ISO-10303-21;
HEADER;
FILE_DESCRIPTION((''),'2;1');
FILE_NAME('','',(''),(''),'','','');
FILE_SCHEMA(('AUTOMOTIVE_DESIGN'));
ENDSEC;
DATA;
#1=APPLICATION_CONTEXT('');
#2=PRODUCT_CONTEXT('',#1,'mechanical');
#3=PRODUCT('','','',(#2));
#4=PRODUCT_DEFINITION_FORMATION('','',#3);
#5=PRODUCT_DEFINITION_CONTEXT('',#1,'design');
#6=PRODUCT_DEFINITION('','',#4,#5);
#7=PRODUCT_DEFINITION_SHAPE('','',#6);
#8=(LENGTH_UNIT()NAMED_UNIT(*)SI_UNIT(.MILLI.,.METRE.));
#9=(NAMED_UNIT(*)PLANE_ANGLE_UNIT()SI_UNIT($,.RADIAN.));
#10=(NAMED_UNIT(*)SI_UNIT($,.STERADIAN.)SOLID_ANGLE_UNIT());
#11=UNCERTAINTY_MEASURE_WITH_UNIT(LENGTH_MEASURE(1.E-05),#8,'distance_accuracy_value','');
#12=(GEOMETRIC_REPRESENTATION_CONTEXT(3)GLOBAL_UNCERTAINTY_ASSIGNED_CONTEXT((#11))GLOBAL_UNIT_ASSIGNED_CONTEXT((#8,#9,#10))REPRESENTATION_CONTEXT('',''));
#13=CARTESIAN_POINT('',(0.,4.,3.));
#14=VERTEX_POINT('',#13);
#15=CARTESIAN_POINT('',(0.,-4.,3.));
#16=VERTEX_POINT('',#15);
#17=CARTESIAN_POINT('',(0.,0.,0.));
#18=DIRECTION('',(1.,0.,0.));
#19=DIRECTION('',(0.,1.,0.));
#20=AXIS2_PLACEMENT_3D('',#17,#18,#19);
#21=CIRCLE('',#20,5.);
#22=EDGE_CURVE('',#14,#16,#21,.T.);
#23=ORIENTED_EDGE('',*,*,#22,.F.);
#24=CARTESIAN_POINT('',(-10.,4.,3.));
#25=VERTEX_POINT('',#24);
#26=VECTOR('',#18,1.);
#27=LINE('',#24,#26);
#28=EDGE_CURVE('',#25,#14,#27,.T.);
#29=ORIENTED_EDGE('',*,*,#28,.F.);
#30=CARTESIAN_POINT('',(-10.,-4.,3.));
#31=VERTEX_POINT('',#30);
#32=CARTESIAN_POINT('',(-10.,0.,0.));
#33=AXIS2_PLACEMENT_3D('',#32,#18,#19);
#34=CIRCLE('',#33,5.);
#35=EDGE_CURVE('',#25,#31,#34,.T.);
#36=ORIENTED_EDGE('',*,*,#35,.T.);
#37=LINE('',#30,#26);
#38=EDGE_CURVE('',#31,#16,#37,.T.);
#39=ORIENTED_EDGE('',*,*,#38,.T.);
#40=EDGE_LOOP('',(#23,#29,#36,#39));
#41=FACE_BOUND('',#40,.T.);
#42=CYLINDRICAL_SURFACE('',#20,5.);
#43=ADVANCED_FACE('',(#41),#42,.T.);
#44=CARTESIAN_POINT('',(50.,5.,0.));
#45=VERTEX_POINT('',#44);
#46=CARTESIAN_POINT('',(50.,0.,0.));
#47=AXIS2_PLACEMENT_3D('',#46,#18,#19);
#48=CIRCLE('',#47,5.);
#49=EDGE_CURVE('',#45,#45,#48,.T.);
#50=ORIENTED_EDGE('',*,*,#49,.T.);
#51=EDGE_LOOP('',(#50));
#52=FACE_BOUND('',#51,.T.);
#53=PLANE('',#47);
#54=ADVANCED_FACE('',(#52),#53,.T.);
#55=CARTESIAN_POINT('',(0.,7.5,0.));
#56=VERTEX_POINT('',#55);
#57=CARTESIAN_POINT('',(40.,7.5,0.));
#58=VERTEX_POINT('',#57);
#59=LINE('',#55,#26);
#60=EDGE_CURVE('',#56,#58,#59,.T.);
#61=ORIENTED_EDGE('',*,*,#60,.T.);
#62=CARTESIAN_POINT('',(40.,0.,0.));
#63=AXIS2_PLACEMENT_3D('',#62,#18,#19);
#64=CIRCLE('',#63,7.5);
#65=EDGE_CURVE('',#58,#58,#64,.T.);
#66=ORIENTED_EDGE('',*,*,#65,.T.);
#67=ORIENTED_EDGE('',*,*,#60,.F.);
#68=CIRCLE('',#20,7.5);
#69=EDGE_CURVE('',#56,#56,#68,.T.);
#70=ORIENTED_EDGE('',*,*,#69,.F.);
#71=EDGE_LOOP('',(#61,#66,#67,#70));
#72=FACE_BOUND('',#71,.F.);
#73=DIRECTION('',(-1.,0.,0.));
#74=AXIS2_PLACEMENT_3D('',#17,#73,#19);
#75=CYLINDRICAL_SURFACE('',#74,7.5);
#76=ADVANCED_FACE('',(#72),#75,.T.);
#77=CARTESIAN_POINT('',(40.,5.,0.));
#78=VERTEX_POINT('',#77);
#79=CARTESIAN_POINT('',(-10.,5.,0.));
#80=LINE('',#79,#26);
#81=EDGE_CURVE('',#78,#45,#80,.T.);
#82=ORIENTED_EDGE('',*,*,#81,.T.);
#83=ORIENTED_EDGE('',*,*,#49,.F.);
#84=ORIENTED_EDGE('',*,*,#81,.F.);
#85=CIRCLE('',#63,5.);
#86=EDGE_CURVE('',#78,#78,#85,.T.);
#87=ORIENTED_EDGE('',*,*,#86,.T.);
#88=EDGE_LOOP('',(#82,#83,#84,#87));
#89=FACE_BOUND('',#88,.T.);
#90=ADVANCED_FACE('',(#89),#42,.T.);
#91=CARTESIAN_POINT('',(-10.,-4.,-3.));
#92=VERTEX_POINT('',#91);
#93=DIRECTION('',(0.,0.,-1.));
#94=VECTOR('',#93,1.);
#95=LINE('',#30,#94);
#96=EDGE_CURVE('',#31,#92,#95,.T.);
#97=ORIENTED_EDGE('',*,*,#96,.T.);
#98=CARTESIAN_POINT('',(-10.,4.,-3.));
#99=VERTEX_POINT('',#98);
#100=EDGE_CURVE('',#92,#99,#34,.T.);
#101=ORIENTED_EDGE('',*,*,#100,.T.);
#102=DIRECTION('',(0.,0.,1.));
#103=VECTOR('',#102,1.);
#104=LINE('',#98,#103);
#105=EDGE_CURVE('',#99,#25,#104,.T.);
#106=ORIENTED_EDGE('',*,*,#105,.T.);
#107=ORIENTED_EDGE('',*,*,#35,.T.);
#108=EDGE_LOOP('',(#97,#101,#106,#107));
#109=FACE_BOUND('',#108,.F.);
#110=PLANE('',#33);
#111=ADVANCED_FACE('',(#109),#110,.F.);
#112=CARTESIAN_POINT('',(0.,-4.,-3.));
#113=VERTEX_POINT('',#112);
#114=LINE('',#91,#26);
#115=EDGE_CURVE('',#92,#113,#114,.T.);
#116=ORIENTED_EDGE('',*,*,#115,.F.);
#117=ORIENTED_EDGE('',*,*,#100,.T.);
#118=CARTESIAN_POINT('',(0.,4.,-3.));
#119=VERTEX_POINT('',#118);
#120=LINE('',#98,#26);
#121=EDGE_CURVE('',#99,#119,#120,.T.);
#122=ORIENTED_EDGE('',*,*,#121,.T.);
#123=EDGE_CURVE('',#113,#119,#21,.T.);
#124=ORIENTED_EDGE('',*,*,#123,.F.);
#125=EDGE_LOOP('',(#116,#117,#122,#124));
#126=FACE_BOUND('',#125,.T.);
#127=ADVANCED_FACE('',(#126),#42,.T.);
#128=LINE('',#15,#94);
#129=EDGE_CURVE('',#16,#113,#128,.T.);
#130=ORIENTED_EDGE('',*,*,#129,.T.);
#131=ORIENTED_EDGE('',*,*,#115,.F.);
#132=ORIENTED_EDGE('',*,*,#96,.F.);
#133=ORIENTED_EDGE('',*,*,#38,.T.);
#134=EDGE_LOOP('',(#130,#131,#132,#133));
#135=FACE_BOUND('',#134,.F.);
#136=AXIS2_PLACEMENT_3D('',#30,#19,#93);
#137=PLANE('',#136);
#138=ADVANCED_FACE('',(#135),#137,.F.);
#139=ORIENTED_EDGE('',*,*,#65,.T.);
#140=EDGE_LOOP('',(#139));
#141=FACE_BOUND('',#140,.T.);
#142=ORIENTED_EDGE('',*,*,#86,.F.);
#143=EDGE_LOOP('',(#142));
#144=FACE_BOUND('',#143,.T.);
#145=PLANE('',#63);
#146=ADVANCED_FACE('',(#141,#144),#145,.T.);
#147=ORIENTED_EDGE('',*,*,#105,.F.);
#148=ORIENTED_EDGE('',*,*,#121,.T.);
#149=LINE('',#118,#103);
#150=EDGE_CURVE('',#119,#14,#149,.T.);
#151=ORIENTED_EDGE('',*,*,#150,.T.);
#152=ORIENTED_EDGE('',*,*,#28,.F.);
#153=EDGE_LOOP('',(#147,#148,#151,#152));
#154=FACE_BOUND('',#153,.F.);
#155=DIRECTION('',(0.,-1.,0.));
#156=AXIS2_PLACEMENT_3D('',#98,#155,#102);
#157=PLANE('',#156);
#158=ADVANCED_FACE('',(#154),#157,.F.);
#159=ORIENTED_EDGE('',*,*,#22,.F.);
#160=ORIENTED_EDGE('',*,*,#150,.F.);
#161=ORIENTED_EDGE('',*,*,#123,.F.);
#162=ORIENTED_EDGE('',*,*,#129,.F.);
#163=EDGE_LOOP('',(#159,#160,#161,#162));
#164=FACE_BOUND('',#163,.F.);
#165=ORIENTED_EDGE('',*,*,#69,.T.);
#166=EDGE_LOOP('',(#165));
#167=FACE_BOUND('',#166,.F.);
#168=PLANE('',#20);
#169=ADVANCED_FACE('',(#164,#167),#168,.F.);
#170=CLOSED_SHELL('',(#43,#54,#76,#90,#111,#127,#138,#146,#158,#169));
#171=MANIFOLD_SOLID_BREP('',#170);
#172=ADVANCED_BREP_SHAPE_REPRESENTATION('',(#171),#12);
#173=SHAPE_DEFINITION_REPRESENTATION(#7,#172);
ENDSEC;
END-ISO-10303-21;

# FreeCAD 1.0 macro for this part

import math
import FreeCAD as App
import Part
import Sketcher
Q = App.Units.Quantity

doc = App.newDocument("Part")
body = doc.addObject("PartDesign::Body", "Body")

# Sketch on YZ plane
sketch1 = body.newObject("Sketcher::SketchObject", "Sketch")
sketch1.AttachmentSupport = (doc.getObject("YZ_Plane"), [""])
sketch1.MapMode = "FlatFace"
sketch1.addGeometry(Part.Circle(App.Vector(0, 0, 0), App.Vector(0, 0, 1), 5), False)
sketch1.addConstraint(Sketcher.Constraint("Coincident", 0, 3, -1, 1))
sketch1.addConstraint(Sketcher.Constraint("Diameter", 0, Q("10 mm")))
pad1 = body.newObject("PartDesign::Pad", "Pad")
pad1.Profile = sketch1
pad1.Type = "TwoLengths"
pad1.Length = 50
pad1.Length2 = 10

# Sketch on YZ plane
sketch2 = body.newObject("Sketcher::SketchObject", "Sketch001")
sketch2.AttachmentSupport = (doc.getObject("YZ_Plane"), [""])
sketch2.MapMode = "FlatFace"
sketch2.addGeometry(Part.Circle(App.Vector(0, 0, 0), App.Vector(0, 0, 1), 7.5), False)
sketch2.addConstraint(Sketcher.Constraint("Coincident", 0, 3, -1, 1))
sketch2.addConstraint(Sketcher.Constraint("Diameter", 0, Q("15 mm")))
pad2 = body.newObject("PartDesign::Pad", "Pad001")
pad2.Profile = sketch2
pad2.Length = 40

# Sketch on YZ plane
sketch3 = body.newObject("Sketcher::SketchObject", "Sketch002")
sketch3.AttachmentSupport = (doc.getObject("YZ_Plane"), [""])
sketch3.MapMode = "FlatFace"
sketch3.AttachmentOffset = App.Placement(App.Vector(0, 0, -10), App.Rotation())
sketch3.addGeometry(Part.LineSegment(App.Vector(4, -3, 0), App.Vector(4, 3, 0)), False)
sketch3.addGeometry(Part.ArcOfCircle(Part.Circle(App.Vector(0, 0, 0), App.Vector(0, 0, 1), 5), math.radians(-36.869898), math.radians(36.869898)), False)
sketch3.addGeometry(Part.ArcOfCircle(Part.Circle(App.Vector(0, 0, 0), App.Vector(0, 0, 1), 5), math.radians(143.130102), math.radians(216.869898)), False)
sketch3.addGeometry(Part.LineSegment(App.Vector(-4, 3, 0), App.Vector(-4, -3, 0)), False)
sketch3.addConstraint(Sketcher.Constraint("Coincident", 0, 1, 1, 1))
sketch3.addConstraint(Sketcher.Constraint("Coincident", 1, 2, 0, 2))
sketch3.addConstraint(Sketcher.Constraint("Coincident", 2, 1, 3, 1))
sketch3.addConstraint(Sketcher.Constraint("Coincident", 3, 2, 2, 2))
sketch3.addConstraint(Sketcher.Constraint("Vertical", 0))
sketch3.addConstraint(Sketcher.Constraint("Vertical", 3))
sketch3.addConstraint(Sketcher.Constraint("Coincident", 1, 3, -1, 1))
sketch3.addConstraint(Sketcher.Constraint("Coincident", 2, 3, -1, 1))
sketch3.addConstraint(Sketcher.Constraint("Equal", 1, 2))
sketch3.addConstraint(Sketcher.Constraint("Horizontal", 1, 2, 2, 1))
sketch3.addConstraint(Sketcher.Constraint("Radius", 1, Q("5 mm")))
sketch3.addConstraint(Sketcher.Constraint("DistanceY", 0, 1, 0, 2, Q("6 mm")))
pocket1 = body.newObject("PartDesign::Pocket", "Pocket")
pocket1.Profile = sketch3
pocket1.Length = 10
pocket1.Reversed = True

doc.recompute()
